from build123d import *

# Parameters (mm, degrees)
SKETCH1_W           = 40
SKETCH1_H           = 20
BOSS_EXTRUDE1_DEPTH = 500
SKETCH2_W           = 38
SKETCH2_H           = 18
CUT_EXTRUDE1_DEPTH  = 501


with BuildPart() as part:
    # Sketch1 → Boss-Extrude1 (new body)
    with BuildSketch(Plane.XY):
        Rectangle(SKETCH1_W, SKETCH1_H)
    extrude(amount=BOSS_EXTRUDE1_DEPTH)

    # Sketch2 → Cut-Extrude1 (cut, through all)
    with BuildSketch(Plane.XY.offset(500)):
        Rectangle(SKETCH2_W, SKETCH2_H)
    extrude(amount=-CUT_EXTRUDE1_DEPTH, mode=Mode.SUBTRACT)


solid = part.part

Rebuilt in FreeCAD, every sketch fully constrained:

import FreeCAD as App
import Part
import Sketcher

doc = App.newDocument("Part")
body = doc.addObject("PartDesign::Body", "Body")

# Sketch on XY plane
sketch1 = body.newObject("Sketcher::SketchObject", "Sketch")
sketch1.AttachmentSupport = (doc.getObject("XY_Plane"), [""])
sketch1.MapMode = "FlatFace"
sketch1.addGeometry(Part.LineSegment(App.Vector(-20, 10, 0), App.Vector(-20, -10, 0)), False)
sketch1.addGeometry(Part.LineSegment(App.Vector(-20, -10, 0), App.Vector(20, -10, 0)), False)
sketch1.addGeometry(Part.LineSegment(App.Vector(20, -10, 0), App.Vector(20, 10, 0)), False)
sketch1.addGeometry(Part.LineSegment(App.Vector(20, 10, 0), App.Vector(-20, 10, 0)), False)
sketch1.addConstraint(Sketcher.Constraint("Coincident", 0, 2, 1, 1))
sketch1.addConstraint(Sketcher.Constraint("Coincident", 1, 2, 2, 1))
sketch1.addConstraint(Sketcher.Constraint("Coincident", 2, 2, 3, 1))
sketch1.addConstraint(Sketcher.Constraint("Coincident", 3, 2, 0, 1))
sketch1.addConstraint(Sketcher.Constraint("Vertical", 0))
sketch1.addConstraint(Sketcher.Constraint("Horizontal", 1))
sketch1.addConstraint(Sketcher.Constraint("Vertical", 2))
sketch1.addConstraint(Sketcher.Constraint("Horizontal", 3))
sketch1.addConstraint(Sketcher.Constraint("Symmetric", 0, 2, 2, 2, -1, 1))
sketch1.addConstraint(Sketcher.Constraint("DistanceX", 1, 1, 1, 2, 40.0))
sketch1.addConstraint(Sketcher.Constraint("DistanceY", 0, 2, 0, 1, 20.0))
pad1 = body.newObject("PartDesign::Pad", "Pad")
pad1.Profile = sketch1
pad1.Length = 500

# Sketch on XY plane
sketch2 = body.newObject("Sketcher::SketchObject", "Sketch001")
sketch2.AttachmentSupport = (doc.getObject("XY_Plane"), [""])
sketch2.MapMode = "FlatFace"
sketch2.AttachmentOffset = App.Placement(App.Vector(0, 0, 500), App.Rotation())
sketch2.addGeometry(Part.LineSegment(App.Vector(-19, 9, 0), App.Vector(-19, -9, 0)), False)
sketch2.addGeometry(Part.LineSegment(App.Vector(-19, -9, 0), App.Vector(19, -9, 0)), False)
sketch2.addGeometry(Part.LineSegment(App.Vector(19, -9, 0), App.Vector(19, 9, 0)), False)
sketch2.addGeometry(Part.LineSegment(App.Vector(19, 9, 0), App.Vector(-19, 9, 0)), False)
sketch2.addConstraint(Sketcher.Constraint("Coincident", 0, 2, 1, 1))
sketch2.addConstraint(Sketcher.Constraint("Coincident", 1, 2, 2, 1))
sketch2.addConstraint(Sketcher.Constraint("Coincident", 2, 2, 3, 1))
sketch2.addConstraint(Sketcher.Constraint("Coincident", 3, 2, 0, 1))
sketch2.addConstraint(Sketcher.Constraint("Vertical", 0))
sketch2.addConstraint(Sketcher.Constraint("Horizontal", 1))
sketch2.addConstraint(Sketcher.Constraint("Vertical", 2))
sketch2.addConstraint(Sketcher.Constraint("Horizontal", 3))
sketch2.addConstraint(Sketcher.Constraint("Symmetric", 0, 2, 2, 2, -1, 1))
sketch2.addConstraint(Sketcher.Constraint("DistanceX", 1, 1, 1, 2, 38.0))
sketch2.addConstraint(Sketcher.Constraint("DistanceY", 0, 2, 0, 1, 18.0))
pocket1 = body.newObject("PartDesign::Pocket", "Pocket")
pocket1.Profile = sketch2
pocket1.Type = "ThroughAll"

doc.recompute()
